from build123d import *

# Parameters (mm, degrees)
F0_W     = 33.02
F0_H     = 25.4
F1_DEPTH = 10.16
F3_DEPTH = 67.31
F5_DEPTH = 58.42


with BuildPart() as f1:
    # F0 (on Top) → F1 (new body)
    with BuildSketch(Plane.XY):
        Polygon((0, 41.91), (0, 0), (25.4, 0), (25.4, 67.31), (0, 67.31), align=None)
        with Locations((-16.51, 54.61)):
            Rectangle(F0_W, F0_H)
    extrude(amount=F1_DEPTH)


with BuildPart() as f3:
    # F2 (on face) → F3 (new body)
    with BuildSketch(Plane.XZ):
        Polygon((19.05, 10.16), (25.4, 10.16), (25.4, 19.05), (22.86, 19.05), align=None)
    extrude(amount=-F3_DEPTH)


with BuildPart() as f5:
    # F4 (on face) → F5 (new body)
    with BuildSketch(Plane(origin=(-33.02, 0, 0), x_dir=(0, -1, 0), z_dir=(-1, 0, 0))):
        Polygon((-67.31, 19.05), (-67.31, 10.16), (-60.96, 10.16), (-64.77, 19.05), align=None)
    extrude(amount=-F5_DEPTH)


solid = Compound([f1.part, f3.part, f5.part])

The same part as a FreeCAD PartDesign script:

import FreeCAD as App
import Part
import Sketcher
from FreeCAD import Vector
Q = App.Units.Quantity

doc = App.newDocument("Part")
body = doc.addObject("PartDesign::Body", "Body")

sketch1 = body.newObject("Sketcher::SketchObject", "Sketch")
sketch1.AttachmentSupport = (doc.getObject("XY_Plane"), [""])
sketch1.MapMode = "FlatFace"
sketch1.addGeometry(Part.LineSegment(Vector(0, 0, 0), Vector(25.4, 0, 0)), False)
sketch1.addGeometry(Part.LineSegment(Vector(25.4, 0, 0), Vector(25.4, 67.31, 0)), False)
sketch1.addGeometry(Part.LineSegment(Vector(25.4, 67.31, 0), Vector(-33.02, 67.31, 0)), False)
sketch1.addGeometry(Part.LineSegment(Vector(-33.02, 67.31, 0), Vector(-33.02, 41.91, 0)), False)
sketch1.addGeometry(Part.LineSegment(Vector(-33.02, 41.91, 0), Vector(0, 41.91, 0)), False)
sketch1.addGeometry(Part.LineSegment(Vector(0, 41.91, 0), Vector(0, 0, 0)), False)
sketch1.addConstraint(Sketcher.Constraint("Coincident", 0, 2, 1, 1))
sketch1.addConstraint(Sketcher.Constraint("Coincident", 1, 2, 2, 1))
sketch1.addConstraint(Sketcher.Constraint("Coincident", 2, 2, 3, 1))
sketch1.addConstraint(Sketcher.Constraint("Coincident", 3, 2, 4, 1))
sketch1.addConstraint(Sketcher.Constraint("Coincident", 4, 2, 5, 1))
sketch1.addConstraint(Sketcher.Constraint("Coincident", 5, 2, 0, 1))
sketch1.addConstraint(Sketcher.Constraint("Horizontal", 0))
sketch1.addConstraint(Sketcher.Constraint("Vertical", 1))
sketch1.addConstraint(Sketcher.Constraint("Horizontal", 2))
sketch1.addConstraint(Sketcher.Constraint("Vertical", 3))
sketch1.addConstraint(Sketcher.Constraint("Horizontal", 4))
sketch1.addConstraint(Sketcher.Constraint("Vertical", 5))
sketch1.addConstraint(Sketcher.Constraint("Coincident", 5, 2, -1, 1))
sketch1.addConstraint(Sketcher.Constraint("Equal", 0, 3))
sketch1.addConstraint(Sketcher.Constraint("DistanceX", 0, 1, 0, 2, Q("1 in")))
sketch1.addConstraint(Sketcher.Constraint("DistanceX", 2, 2, 2, 1, Q("2.3 in")))
sketch1.addConstraint(Sketcher.Constraint("DistanceY", 1, 1, 1, 2, Q("2.65 in")))
pad1 = body.newObject("PartDesign::Pad", "Pad")
pad1.Profile = sketch1
pad1.Length = Q("0.4 in")
body2 = doc.addObject("PartDesign::Body", "Body001")

sketch2 = body2.newObject("Sketcher::SketchObject", "Sketch001")
sketch2.AttachmentSupport = (doc.getObject("XZ_Plane001"), [""])
sketch2.MapMode = "FlatFace"
sketch2.addGeometry(Part.LineSegment(Vector(19.05, 10.16, 0), Vector(25.4, 10.16, 0)), False)
sketch2.addGeometry(Part.LineSegment(Vector(25.4, 10.16, 0), Vector(25.4, 19.05, 0)), False)
sketch2.addGeometry(Part.LineSegment(Vector(25.4, 19.05, 0), Vector(22.86, 19.05, 0)), False)
sketch2.addGeometry(Part.LineSegment(Vector(22.86, 19.05, 0), Vector(19.05, 10.16, 0)), False)
sketch2.addConstraint(Sketcher.Constraint("Coincident", 0, 2, 1, 1))
sketch2.addConstraint(Sketcher.Constraint("Coincident", 1, 2, 2, 1))
sketch2.addConstraint(Sketcher.Constraint("Coincident", 2, 2, 3, 1))
sketch2.addConstraint(Sketcher.Constraint("Coincident", 3, 2, 0, 1))
sketch2.addConstraint(Sketcher.Constraint("Horizontal", 0))
sketch2.addConstraint(Sketcher.Constraint("Vertical", 1))
sketch2.addConstraint(Sketcher.Constraint("Horizontal", 2))
sketch2.addConstraint(Sketcher.Constraint("DistanceX", 2, 2, 2, 1, Q("0.1 in")))
sketch2.addConstraint(Sketcher.Constraint("DistanceX", -1, 1, 0, 2, Q("1 in")))
sketch2.addConstraint(Sketcher.Constraint("DistanceX", 0, 1, 0, 2, Q("0.25 in")))
sketch2.addConstraint(Sketcher.Constraint("DistanceY", 1, 1, 1, 2, Q("0.35 in")))
sketch2.addConstraint(Sketcher.Constraint("DistanceY", -1, 1, 0, 2, Q("0.4 in")))
pad2 = body2.newObject("PartDesign::Pad", "Pad001")
pad2.Profile = sketch2
pad2.Length = Q("2.65 in")
pad2.Reversed = True
body3 = doc.addObject("PartDesign::Body", "Body002")

sketch3 = body3.newObject("Sketcher::SketchObject", "Sketch002")
sketch3.AttachmentSupport = (doc.getObject("YZ_Plane002"), [""])
sketch3.MapMode = "FlatFace"
sketch3.AttachmentOffset = App.Placement(Vector(0, 0, -1.3 * 25.4), App.Rotation())
sketch3.addGeometry(Part.LineSegment(Vector(67.31, 19.05, 0), Vector(67.31, 10.16, 0)), False)
sketch3.addGeometry(Part.LineSegment(Vector(67.31, 10.16, 0), Vector(60.96, 10.16, 0)), False)
sketch3.addGeometry(Part.LineSegment(Vector(60.96, 10.16, 0), Vector(64.77, 19.05, 0)), False)
sketch3.addGeometry(Part.LineSegment(Vector(64.77, 19.05, 0), Vector(67.31, 19.05, 0)), False)
sketch3.addConstraint(Sketcher.Constraint("Coincident", 0, 2, 1, 1))
sketch3.addConstraint(Sketcher.Constraint("Coincident", 1, 2, 2, 1))
sketch3.addConstraint(Sketcher.Constraint("Coincident", 2, 2, 3, 1))
sketch3.addConstraint(Sketcher.Constraint("Coincident", 3, 2, 0, 1))
sketch3.addConstraint(Sketcher.Constraint("Vertical", 0))
sketch3.addConstraint(Sketcher.Constraint("Horizontal", 1))
sketch3.addConstraint(Sketcher.Constraint("Horizontal", 3))
sketch3.addConstraint(Sketcher.Constraint("DistanceX", 3, 1, 3, 2, Q("0.1 in")))
sketch3.addConstraint(Sketcher.Constraint("DistanceX", 1, 2, 1, 1, Q("0.25 in")))
sketch3.addConstraint(Sketcher.Constraint("DistanceY", 0, 2, 0, 1, Q("0.35 in")))
sketch3.addConstraint(Sketcher.Constraint("DistanceY", -1, 1, 0, 2, Q("0.4 in")))
sketch3.addConstraint(Sketcher.Constraint("DistanceX", -1, 1, 1, 2, Q("2.4 in")))
pad3 = body3.newObject("PartDesign::Pad", "Pad002")
pad3.Profile = sketch3
pad3.Length = Q("2.3 in")

doc.recompute()
